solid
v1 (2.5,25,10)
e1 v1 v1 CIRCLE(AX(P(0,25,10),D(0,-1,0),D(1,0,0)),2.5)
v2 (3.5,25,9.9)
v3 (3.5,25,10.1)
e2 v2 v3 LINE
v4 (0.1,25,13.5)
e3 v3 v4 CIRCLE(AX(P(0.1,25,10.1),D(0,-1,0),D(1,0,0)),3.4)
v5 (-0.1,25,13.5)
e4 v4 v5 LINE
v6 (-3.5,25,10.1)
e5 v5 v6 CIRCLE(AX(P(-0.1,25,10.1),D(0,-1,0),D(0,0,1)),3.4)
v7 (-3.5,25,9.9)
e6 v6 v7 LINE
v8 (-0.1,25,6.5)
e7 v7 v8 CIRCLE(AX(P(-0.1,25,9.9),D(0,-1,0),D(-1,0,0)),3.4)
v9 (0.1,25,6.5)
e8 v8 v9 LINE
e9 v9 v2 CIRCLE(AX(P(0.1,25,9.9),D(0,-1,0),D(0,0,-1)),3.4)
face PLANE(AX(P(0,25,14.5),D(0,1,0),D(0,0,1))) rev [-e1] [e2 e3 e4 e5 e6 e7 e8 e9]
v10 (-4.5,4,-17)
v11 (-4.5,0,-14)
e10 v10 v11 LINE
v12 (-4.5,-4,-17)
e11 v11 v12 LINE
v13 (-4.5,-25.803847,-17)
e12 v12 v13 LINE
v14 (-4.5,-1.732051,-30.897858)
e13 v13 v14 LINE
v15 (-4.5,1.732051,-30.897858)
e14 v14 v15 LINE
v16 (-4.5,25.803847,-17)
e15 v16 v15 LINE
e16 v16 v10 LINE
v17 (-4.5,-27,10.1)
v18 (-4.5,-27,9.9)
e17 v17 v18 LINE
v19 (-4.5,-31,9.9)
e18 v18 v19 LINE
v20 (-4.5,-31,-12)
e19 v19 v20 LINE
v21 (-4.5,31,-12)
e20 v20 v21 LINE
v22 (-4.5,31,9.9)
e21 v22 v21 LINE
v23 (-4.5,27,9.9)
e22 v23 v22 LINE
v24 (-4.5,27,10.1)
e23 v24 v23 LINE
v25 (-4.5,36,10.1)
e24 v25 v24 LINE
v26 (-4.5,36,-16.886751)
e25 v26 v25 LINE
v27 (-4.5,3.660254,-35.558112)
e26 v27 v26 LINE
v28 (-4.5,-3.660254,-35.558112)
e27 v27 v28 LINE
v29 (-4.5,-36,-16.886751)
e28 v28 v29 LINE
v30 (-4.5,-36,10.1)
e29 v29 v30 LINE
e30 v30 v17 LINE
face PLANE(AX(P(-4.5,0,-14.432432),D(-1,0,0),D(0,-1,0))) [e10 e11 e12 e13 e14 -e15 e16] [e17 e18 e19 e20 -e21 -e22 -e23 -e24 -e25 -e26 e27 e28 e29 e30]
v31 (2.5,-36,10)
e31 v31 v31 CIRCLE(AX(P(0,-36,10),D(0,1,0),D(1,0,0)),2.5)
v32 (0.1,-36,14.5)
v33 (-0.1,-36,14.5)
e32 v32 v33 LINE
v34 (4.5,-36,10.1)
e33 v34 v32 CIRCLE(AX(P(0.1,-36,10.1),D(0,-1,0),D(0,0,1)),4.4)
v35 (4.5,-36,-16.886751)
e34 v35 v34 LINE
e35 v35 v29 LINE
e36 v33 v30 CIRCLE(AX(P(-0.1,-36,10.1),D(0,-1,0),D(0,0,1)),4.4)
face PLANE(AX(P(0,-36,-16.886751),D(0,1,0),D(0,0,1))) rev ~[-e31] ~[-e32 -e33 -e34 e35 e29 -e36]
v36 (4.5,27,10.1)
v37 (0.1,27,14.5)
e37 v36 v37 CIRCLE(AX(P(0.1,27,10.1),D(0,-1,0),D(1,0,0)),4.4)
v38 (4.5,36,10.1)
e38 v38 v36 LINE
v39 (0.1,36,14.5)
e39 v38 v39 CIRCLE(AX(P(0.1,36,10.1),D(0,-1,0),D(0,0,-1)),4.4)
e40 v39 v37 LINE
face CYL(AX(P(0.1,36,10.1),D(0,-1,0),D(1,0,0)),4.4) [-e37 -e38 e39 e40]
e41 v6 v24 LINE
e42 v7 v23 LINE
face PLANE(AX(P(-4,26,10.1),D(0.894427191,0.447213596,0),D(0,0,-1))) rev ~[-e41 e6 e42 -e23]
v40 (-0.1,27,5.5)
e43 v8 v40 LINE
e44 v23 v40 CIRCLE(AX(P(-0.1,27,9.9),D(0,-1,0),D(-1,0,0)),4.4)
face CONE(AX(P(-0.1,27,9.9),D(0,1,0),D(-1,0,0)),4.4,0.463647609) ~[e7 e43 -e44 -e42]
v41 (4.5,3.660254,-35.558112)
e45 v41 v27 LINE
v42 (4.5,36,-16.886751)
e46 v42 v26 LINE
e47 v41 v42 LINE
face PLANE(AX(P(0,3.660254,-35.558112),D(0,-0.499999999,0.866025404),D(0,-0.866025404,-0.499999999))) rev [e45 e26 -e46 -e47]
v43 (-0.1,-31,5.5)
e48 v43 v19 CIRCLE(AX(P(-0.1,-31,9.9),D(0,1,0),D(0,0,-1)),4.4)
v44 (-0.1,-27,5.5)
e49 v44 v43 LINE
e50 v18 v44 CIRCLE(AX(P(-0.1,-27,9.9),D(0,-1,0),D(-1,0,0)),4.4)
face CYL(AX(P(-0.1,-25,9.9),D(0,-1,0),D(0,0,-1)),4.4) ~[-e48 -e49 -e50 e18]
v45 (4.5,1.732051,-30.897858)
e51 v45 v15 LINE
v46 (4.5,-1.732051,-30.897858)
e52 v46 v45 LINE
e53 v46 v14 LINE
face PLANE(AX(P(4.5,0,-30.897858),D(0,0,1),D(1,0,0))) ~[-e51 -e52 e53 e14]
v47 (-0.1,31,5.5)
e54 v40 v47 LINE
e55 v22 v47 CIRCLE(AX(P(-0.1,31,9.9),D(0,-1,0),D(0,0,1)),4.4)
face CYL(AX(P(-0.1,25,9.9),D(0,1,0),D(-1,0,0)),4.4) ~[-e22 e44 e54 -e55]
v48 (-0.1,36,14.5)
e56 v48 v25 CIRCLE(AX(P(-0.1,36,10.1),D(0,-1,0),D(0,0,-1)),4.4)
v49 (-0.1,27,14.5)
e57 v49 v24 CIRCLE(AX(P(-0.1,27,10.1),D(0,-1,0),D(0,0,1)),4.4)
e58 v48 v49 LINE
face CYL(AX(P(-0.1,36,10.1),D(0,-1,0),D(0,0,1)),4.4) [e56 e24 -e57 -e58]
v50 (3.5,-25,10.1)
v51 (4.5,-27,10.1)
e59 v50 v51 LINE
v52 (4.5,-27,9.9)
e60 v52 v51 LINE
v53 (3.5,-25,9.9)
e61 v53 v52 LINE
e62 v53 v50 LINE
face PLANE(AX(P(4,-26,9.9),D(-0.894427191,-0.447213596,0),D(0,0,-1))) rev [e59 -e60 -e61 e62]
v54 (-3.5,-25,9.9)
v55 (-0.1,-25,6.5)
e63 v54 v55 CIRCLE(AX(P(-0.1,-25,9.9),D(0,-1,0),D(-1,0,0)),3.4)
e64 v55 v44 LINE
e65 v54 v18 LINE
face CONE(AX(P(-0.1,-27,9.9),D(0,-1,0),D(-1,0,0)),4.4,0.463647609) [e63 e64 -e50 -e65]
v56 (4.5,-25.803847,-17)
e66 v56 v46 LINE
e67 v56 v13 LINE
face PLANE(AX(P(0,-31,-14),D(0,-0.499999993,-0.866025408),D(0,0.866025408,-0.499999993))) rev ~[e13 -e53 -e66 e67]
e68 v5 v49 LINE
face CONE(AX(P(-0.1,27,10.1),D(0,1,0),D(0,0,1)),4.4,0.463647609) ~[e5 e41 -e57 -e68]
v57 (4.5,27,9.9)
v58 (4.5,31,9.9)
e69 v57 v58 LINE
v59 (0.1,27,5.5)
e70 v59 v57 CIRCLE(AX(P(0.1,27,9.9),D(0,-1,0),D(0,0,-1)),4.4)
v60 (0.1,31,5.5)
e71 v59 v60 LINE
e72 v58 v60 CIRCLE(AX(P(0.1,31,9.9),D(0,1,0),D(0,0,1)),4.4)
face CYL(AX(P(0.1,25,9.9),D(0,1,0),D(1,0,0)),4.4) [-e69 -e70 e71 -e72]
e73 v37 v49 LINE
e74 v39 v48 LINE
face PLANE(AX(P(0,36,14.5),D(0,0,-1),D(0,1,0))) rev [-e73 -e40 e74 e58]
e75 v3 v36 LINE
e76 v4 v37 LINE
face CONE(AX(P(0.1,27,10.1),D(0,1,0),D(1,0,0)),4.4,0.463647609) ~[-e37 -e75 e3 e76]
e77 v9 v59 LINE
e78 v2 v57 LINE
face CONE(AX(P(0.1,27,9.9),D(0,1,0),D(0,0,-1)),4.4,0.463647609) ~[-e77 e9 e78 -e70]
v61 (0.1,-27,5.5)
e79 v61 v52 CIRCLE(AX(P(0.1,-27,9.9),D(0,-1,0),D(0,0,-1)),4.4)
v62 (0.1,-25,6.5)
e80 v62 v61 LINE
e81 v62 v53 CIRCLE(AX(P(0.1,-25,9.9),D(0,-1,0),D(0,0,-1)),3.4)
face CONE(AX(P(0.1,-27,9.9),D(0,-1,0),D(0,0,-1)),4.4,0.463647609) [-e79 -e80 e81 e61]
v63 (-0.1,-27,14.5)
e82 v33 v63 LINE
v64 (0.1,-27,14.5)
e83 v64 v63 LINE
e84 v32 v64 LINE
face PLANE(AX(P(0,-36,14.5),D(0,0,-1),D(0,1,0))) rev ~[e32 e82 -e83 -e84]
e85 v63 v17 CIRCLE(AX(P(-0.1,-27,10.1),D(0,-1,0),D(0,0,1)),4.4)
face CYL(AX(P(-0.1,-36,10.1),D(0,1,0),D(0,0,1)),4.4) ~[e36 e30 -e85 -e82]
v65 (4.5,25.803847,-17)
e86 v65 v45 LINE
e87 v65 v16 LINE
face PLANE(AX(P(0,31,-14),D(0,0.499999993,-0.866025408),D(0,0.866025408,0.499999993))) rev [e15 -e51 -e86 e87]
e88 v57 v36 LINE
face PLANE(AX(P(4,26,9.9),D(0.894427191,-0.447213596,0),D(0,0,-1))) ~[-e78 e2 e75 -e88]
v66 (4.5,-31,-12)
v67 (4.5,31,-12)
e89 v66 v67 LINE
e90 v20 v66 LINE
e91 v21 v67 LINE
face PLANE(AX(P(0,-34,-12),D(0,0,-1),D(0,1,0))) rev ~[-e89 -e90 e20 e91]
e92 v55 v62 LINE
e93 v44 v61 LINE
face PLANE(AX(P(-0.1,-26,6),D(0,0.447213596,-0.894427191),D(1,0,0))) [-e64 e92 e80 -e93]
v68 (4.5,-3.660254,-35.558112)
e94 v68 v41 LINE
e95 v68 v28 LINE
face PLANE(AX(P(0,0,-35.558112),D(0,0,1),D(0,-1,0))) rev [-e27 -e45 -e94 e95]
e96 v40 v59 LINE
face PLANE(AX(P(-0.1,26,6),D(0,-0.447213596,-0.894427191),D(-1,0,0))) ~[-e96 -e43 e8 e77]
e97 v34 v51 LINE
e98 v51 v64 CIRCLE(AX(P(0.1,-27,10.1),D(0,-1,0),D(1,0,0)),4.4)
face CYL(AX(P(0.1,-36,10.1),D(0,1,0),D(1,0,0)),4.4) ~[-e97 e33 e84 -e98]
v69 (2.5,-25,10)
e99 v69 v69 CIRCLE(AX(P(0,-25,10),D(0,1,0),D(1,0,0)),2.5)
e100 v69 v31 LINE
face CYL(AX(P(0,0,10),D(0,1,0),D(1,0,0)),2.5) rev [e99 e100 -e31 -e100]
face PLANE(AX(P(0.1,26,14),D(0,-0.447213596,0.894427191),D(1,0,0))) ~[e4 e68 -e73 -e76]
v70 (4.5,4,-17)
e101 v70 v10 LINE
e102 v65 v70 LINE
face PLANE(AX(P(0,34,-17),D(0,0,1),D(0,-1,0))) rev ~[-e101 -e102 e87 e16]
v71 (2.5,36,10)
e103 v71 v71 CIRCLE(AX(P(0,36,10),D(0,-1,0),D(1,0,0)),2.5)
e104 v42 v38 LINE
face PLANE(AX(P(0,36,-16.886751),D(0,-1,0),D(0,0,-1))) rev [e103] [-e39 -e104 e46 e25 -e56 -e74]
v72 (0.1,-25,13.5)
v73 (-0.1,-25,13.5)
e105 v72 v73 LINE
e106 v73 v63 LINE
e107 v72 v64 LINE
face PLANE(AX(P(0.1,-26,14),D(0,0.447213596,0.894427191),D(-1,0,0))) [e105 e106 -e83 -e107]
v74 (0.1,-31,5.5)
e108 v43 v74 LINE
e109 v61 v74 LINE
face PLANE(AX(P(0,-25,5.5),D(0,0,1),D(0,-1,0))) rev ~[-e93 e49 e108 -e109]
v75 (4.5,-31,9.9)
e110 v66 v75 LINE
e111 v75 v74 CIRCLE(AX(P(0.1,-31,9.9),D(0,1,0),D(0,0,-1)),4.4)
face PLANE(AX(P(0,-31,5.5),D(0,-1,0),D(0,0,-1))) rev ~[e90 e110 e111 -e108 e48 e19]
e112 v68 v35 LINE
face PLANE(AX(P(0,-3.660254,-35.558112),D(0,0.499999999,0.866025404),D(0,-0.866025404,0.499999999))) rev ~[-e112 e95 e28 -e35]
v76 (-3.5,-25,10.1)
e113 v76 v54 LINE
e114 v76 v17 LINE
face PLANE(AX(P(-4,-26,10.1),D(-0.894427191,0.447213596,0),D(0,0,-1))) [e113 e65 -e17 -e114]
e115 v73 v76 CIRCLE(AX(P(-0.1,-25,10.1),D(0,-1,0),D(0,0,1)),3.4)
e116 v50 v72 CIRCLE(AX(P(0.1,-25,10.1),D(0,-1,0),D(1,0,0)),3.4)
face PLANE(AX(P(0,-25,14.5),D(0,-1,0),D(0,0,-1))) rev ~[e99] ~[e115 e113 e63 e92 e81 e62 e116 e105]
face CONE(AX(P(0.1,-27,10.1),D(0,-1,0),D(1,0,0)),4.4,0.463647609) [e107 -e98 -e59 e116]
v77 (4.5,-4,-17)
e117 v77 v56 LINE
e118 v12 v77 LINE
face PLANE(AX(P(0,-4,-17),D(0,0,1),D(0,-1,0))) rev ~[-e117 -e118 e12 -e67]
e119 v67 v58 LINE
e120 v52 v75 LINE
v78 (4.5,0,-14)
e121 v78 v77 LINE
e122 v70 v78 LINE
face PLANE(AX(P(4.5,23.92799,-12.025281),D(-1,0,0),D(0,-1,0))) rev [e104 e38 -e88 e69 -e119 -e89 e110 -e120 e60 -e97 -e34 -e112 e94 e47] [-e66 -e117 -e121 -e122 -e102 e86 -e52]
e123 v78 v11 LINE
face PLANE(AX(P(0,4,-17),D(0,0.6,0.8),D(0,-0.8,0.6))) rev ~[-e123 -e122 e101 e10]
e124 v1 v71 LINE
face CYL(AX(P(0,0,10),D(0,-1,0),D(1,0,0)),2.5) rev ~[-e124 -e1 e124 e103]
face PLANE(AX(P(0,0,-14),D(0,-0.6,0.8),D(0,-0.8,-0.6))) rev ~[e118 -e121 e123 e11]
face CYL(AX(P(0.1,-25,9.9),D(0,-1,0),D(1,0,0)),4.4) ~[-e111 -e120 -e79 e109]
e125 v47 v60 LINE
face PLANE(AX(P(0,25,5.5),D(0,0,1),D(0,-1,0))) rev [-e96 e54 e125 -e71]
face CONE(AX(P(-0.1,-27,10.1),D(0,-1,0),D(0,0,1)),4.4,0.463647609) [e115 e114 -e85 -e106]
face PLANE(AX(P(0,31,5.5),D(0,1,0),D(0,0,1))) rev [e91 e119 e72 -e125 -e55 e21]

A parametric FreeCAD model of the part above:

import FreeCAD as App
import Part
import Sketcher

V = App.Vector
Q = App.Units.Quantity


def edges_at(feature, points):
    """Names of the edges that pass closest to the given points."""
    edges = feature.Shape.Edges
    near = lambda p: min(range(len(edges)), key=lambda i: edges[i].distToShape(Part.Vertex(*p))[0])
    return sorted({f"Edge{near(p) + 1}" for p in points})

doc = App.newDocument("Part")
body = doc.addObject("PartDesign::Body", "Body")

# Sketch on YZ plane
sketch1 = body.newObject("Sketcher::SketchObject", "Sketch")
sketch1.AttachmentSupport = (doc.getObject("YZ_Plane"), [""])
sketch1.MapMode = "FlatFace"
sketch1.addGeometry([
    Part.LineSegment(V(-31, -14, 0), V(-31, 5.5, 0)),  # 0
    Part.LineSegment(V(-31, 5.5, 0), V(-25, 5.5, 0)),  # 1
    Part.LineSegment(V(-25, 5.5, 0), V(-25, 14.5, 0)),  # 2
    Part.LineSegment(V(-25, 14.5, 0), V(-36, 14.5, 0)),  # 3
    Part.LineSegment(V(-36, 14.5, 0), V(-36, -16.9, 0)),  # 4
    Part.LineSegment(V(-36, -16.9, 0), V(-3.7, -35.6, 0)),  # 5
    Part.LineSegment(V(-3.7, -35.6, 0), V(0, -35.6, 0)),  # 6
    Part.LineSegment(V(0, -35.6, 0), V(0, -31.9, 0)),  # 7
    Part.LineSegment(V(0, -31.9, 0), V(-31, -14, 0)),  # 8
], False)
sketch1.addConstraint([
    Sketcher.Constraint("Coincident", 0, 2, 1, 1),
    Sketcher.Constraint("Coincident", 1, 2, 2, 1),
    Sketcher.Constraint("Coincident", 2, 2, 3, 1),
    Sketcher.Constraint("Coincident", 3, 2, 4, 1),
    Sketcher.Constraint("Coincident", 4, 2, 5, 1),
    Sketcher.Constraint("Coincident", 5, 2, 6, 1),
    Sketcher.Constraint("Coincident", 6, 2, 7, 1),
    Sketcher.Constraint("Coincident", 7, 2, 8, 1),
    Sketcher.Constraint("Coincident", 8, 2, 0, 1),
    Sketcher.Constraint("Vertical", 0),
    Sketcher.Constraint("Horizontal", 1),
    Sketcher.Constraint("Vertical", 2),
    Sketcher.Constraint("Horizontal", 3),
    Sketcher.Constraint("Vertical", 4),
    Sketcher.Constraint("Horizontal", 6),
    Sketcher.Constraint("Vertical", 7),
    Sketcher.Constraint("PointOnObject", 6, 2, -2),
    Sketcher.Constraint("Parallel", 5, 8),
    Sketcher.Constraint("Equal", 6, 7),
    Sketcher.Constraint("DistanceX", 1, 1, 1, 2, 6.0),
    Sketcher.Constraint("DistanceX", 3, 2, 3, 1, 11.0),
    Sketcher.Constraint("DistanceY", 2, 1, 2, 2, 9.0),
    Sketcher.Constraint("Angle", 5, Q("-30 deg")),
    Sketcher.Constraint("DistanceY", 0, 1, 0, 2, 19.5),
    Sketcher.Constraint("DistanceX", 0, 2, -1, 1, 31.0),
    Sketcher.Constraint("DistanceY", 8, 2, -1, 1, 14.0),
    Sketcher.Constraint("DistanceY", 4, 2, 4, 1, 31.386751),
])
pad1 = body.newObject("PartDesign::Pad", "Pad")
pad1.Profile = sketch1
pad1.Length = 9
pad1.Midplane = True
doc.recompute()

mirrored = body.newObject("PartDesign::Mirrored", "Mirrored")
mirrored.Originals = [pad1]
mirrored.MirrorPlane = (doc.getObject("XZ_Plane"), [""])
body.Tip = mirrored
doc.recompute()

fillet = body.newObject("PartDesign::Fillet", "Fillet")
fillet.Base = (mirrored, edges_at(mirrored, [
    (-4.5, 28, 5.5),
    (-4.5, 30.5, 14.5),
    (4.5, 28, 5.5),
    (-4.5, -28, 5.5),
    (-4.5, -30.5, 14.5),
    (4.5, -30.5, 14.5),
    (4.5, 30.5, 14.5),
    (4.5, -28, 5.5),
]))
fillet.Radius = 4.4
doc.recompute()

chamfer = body.newObject("PartDesign::Chamfer", "Chamfer")
chamfer.Base = (fillet, edges_at(fillet, [(-3.211, 25, 13.211)]))
chamfer.ChamferType = "Two distances"
chamfer.Size = 1
chamfer.Size2 = 2
doc.recompute()

chamfer2 = body.newObject("PartDesign::Chamfer", "Chamfer001")
chamfer2.Base = (chamfer, edges_at(chamfer, [(-3.211, -25, 13.211)]))
chamfer2.ChamferType = "Two distances"
chamfer2.Size = 1
chamfer2.Size2 = 2
chamfer2.FlipDirection = True
doc.recompute()

chamfer3 = body.newObject("PartDesign::Chamfer", "Chamfer002")
chamfer3.Base = (chamfer2, edges_at(chamfer2, [(0, 0, -31.898)]))
chamfer3.Size = 2

# Sketch on YZ plane
sketch2 = body.newObject("Sketcher::SketchObject", "Sketch001")
sketch2.AttachmentSupport = (doc.getObject("YZ_Plane"), [""])
sketch2.MapMode = "FlatFace"
sketch2.addGeometry([
    Part.LineSegment(V(34, -12, 0), V(-34, -12, 0)),  # 0
    Part.LineSegment(V(-34, -12, 0), V(-34, -17, 0)),  # 1
    Part.LineSegment(V(-34, -17, 0), V(-4, -17, 0)),  # 2
    Part.LineSegment(V(-4, -17, 0), V(0, -14, 0)),  # 3
    Part.LineSegment(V(0, -14, 0), V(4, -17, 0)),  # 4
    Part.LineSegment(V(4, -17, 0), V(34, -17, 0)),  # 5
    Part.LineSegment(V(34, -17, 0), V(34, -12, 0)),  # 6
], False)
sketch2.addConstraint([
    Sketcher.Constraint("Coincident", 0, 2, 1, 1),
    Sketcher.Constraint("Coincident", 1, 2, 2, 1),
    Sketcher.Constraint("Coincident", 2, 2, 3, 1),
    Sketcher.Constraint("Coincident", 3, 2, 4, 1),
    Sketcher.Constraint("Coincident", 4, 2, 5, 1),
    Sketcher.Constraint("Coincident", 5, 2, 6, 1),
    Sketcher.Constraint("Coincident", 6, 2, 0, 1),
    Sketcher.Constraint("Horizontal", 0),
    Sketcher.Constraint("Vertical", 1),
    Sketcher.Constraint("Horizontal", 2),
    Sketcher.Constraint("Horizontal", 5),
    Sketcher.Constraint("Vertical", 6),
    Sketcher.Constraint("Symmetric", 2, 2, 4, 2, -2),
    Sketcher.Constraint("PointOnObject", 3, 2, -2),
    Sketcher.Constraint("Equal", 2, 5),
    Sketcher.Constraint("DistanceX", 0, 2, 0, 1, 68.0),
    Sketcher.Constraint("DistanceX", 2, 1, 2, 2, 30.0),
    Sketcher.Constraint("DistanceY", 1, 2, 1, 1, 5.0),
    Sketcher.Constraint("Distance", 3, 5.0),
    Sketcher.Constraint("DistanceY", 0, 2, -1, 1, 12.0),
])
pad2 = body.newObject("PartDesign::Pad", "Pad001")
pad2.Profile = sketch2
pad2.Length = 9
pad2.Midplane = True

# Sketch on XZ plane
sketch3 = body.newObject("Sketcher::SketchObject", "Sketch002")
sketch3.AttachmentSupport = (doc.getObject("XZ_Plane"), [""])
sketch3.MapMode = "FlatFace"
sketch3.addGeometry(Part.Circle(V(0, 10, 0), V(0, 0, 1), 2.5), False)
sketch3.addConstraint([
    Sketcher.Constraint("PointOnObject", 0, 3, -2),
    Sketcher.Constraint("Diameter", 0, 5.0),
    Sketcher.Constraint("DistanceY", -1, 1, 0, 3, 10.0),
])
pocket1 = body.newObject("PartDesign::Pocket", "Pocket")
pocket1.Profile = sketch3
pocket1.Type = "ThroughAll"
pocket1.Midplane = True

doc.recompute()
